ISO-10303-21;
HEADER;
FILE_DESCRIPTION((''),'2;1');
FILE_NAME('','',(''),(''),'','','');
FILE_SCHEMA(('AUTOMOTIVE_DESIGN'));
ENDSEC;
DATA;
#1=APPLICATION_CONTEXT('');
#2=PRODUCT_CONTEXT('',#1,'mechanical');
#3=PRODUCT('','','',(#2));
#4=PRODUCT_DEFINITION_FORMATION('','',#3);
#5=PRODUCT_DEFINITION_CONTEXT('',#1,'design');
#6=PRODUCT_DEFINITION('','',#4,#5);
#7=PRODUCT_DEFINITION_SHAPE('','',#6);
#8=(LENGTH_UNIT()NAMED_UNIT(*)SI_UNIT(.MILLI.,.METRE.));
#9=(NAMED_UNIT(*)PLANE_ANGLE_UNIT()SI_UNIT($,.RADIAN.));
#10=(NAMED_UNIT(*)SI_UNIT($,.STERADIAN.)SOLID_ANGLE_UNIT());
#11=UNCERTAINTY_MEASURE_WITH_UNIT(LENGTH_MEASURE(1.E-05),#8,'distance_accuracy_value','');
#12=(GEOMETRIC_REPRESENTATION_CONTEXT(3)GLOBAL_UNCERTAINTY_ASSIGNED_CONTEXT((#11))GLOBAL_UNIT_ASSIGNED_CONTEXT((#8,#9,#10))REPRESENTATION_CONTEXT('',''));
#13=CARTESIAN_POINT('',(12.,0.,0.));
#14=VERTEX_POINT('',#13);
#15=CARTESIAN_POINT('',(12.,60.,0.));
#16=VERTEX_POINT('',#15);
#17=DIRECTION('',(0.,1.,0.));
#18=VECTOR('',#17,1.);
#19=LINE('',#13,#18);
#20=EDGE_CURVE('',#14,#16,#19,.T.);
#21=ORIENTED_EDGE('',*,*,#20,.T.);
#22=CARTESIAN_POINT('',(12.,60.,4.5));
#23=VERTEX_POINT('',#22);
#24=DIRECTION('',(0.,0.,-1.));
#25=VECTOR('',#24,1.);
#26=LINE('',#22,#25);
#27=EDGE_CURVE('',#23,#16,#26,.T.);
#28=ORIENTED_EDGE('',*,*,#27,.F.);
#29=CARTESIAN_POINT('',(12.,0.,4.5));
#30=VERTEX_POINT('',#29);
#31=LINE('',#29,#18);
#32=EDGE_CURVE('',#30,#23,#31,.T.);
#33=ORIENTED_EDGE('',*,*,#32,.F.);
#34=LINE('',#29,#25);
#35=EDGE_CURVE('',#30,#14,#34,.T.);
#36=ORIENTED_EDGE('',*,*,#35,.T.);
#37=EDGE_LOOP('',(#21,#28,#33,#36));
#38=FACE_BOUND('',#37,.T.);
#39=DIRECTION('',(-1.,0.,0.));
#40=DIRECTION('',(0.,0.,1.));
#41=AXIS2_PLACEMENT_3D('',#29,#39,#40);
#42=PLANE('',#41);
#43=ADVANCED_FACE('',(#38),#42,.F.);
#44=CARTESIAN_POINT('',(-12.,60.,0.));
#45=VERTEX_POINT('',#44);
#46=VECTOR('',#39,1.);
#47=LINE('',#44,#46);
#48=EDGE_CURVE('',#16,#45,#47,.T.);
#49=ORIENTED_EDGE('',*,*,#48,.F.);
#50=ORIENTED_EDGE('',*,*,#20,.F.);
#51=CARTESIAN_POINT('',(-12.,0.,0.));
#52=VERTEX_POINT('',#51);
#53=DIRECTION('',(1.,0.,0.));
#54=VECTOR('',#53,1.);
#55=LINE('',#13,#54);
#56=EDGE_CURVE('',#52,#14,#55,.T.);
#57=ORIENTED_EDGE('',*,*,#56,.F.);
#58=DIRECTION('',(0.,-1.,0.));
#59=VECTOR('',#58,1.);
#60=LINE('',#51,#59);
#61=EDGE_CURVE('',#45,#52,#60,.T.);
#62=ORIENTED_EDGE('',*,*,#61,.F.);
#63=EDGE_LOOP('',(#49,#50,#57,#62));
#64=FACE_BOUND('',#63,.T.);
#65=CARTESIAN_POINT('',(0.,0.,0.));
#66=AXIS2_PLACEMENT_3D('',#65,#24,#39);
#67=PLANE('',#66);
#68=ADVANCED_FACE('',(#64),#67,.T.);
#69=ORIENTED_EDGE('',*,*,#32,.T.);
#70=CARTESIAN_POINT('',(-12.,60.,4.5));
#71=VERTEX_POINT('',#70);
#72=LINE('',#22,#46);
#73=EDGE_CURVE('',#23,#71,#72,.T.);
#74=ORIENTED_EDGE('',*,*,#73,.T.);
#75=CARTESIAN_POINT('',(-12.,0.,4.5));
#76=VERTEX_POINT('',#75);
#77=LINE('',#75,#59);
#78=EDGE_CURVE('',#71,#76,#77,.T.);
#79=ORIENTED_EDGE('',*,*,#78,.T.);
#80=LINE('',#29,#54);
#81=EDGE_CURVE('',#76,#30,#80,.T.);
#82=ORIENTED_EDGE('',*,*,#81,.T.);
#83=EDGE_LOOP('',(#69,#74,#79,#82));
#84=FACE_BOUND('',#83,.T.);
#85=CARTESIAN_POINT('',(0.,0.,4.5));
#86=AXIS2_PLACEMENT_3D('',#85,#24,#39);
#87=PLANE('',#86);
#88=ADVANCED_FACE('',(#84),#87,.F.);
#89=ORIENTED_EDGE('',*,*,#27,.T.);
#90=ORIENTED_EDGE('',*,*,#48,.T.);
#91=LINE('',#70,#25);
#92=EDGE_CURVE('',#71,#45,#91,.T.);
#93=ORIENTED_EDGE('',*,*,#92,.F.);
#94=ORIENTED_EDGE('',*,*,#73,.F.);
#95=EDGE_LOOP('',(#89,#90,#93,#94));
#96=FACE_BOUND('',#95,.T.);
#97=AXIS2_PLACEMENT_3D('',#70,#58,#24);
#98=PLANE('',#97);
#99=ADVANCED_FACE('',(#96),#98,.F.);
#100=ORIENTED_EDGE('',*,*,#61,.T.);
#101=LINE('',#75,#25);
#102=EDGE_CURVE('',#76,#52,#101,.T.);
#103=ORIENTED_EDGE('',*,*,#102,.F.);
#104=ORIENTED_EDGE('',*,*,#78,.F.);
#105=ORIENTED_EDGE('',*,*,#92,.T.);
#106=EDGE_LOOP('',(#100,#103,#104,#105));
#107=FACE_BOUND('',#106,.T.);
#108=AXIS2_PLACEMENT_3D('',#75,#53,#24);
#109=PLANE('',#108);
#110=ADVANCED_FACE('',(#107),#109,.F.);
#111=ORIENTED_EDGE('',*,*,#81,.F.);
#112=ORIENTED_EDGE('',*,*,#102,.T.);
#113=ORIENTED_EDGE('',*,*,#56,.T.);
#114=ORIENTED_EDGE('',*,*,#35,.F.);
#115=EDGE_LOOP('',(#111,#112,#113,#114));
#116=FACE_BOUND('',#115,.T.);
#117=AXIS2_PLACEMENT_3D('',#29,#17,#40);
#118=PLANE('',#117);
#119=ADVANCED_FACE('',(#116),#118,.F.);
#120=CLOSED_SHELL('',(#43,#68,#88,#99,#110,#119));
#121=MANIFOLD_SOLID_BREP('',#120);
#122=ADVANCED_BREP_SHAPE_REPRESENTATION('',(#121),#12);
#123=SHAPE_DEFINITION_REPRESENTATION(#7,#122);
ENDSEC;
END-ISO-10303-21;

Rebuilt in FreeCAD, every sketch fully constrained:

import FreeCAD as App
import Part
import Sketcher

V = App.Vector

doc = App.newDocument("Part")
body = doc.addObject("PartDesign::Body", "Body")

# Sketch on XY plane
sketch1 = doc.addObject("Sketcher::SketchObject", "Sketch")
body.addObject(sketch1)
sketch1.AttachmentSupport = (doc.XY_Plane, [""])
sketch1.MapMode = "FlatFace"
sketch1.addGeometry(Part.LineSegment(V(-12, 0, 0), V(12, 0, 0)), False)
sketch1.addGeometry(Part.LineSegment(V(12, 0, 0), V(12, 60, 0)), False)
sketch1.addGeometry(Part.LineSegment(V(12, 60, 0), V(-12, 60, 0)), False)
sketch1.addGeometry(Part.LineSegment(V(-12, 60, 0), V(-12, 0, 0)), False)
sketch1.addConstraint(Sketcher.Constraint("Coincident", 0, 2, 1, 1))
sketch1.addConstraint(Sketcher.Constraint("Coincident", 1, 2, 2, 1))
sketch1.addConstraint(Sketcher.Constraint("Coincident", 2, 2, 3, 1))
sketch1.addConstraint(Sketcher.Constraint("Coincident", 3, 2, 0, 1))
sketch1.addConstraint(Sketcher.Constraint("Horizontal", 0))
sketch1.addConstraint(Sketcher.Constraint("Vertical", 1))
sketch1.addConstraint(Sketcher.Constraint("Horizontal", 2))
sketch1.addConstraint(Sketcher.Constraint("Vertical", 3))
sketch1.addConstraint(Sketcher.Constraint("Symmetric", 0, 2, 3, 2, -1, 1))
sketch1.addConstraint(Sketcher.Constraint("DistanceX", 0, 1, 0, 2, 24.0))
sketch1.addConstraint(Sketcher.Constraint("DistanceY", 1, 1, 1, 2, 60.0))
pad1 = doc.addObject("PartDesign::Pad", "Pad")
body.addObject(pad1)
pad1.Profile = sketch1
pad1.Length = 4.5

doc.recompute()
